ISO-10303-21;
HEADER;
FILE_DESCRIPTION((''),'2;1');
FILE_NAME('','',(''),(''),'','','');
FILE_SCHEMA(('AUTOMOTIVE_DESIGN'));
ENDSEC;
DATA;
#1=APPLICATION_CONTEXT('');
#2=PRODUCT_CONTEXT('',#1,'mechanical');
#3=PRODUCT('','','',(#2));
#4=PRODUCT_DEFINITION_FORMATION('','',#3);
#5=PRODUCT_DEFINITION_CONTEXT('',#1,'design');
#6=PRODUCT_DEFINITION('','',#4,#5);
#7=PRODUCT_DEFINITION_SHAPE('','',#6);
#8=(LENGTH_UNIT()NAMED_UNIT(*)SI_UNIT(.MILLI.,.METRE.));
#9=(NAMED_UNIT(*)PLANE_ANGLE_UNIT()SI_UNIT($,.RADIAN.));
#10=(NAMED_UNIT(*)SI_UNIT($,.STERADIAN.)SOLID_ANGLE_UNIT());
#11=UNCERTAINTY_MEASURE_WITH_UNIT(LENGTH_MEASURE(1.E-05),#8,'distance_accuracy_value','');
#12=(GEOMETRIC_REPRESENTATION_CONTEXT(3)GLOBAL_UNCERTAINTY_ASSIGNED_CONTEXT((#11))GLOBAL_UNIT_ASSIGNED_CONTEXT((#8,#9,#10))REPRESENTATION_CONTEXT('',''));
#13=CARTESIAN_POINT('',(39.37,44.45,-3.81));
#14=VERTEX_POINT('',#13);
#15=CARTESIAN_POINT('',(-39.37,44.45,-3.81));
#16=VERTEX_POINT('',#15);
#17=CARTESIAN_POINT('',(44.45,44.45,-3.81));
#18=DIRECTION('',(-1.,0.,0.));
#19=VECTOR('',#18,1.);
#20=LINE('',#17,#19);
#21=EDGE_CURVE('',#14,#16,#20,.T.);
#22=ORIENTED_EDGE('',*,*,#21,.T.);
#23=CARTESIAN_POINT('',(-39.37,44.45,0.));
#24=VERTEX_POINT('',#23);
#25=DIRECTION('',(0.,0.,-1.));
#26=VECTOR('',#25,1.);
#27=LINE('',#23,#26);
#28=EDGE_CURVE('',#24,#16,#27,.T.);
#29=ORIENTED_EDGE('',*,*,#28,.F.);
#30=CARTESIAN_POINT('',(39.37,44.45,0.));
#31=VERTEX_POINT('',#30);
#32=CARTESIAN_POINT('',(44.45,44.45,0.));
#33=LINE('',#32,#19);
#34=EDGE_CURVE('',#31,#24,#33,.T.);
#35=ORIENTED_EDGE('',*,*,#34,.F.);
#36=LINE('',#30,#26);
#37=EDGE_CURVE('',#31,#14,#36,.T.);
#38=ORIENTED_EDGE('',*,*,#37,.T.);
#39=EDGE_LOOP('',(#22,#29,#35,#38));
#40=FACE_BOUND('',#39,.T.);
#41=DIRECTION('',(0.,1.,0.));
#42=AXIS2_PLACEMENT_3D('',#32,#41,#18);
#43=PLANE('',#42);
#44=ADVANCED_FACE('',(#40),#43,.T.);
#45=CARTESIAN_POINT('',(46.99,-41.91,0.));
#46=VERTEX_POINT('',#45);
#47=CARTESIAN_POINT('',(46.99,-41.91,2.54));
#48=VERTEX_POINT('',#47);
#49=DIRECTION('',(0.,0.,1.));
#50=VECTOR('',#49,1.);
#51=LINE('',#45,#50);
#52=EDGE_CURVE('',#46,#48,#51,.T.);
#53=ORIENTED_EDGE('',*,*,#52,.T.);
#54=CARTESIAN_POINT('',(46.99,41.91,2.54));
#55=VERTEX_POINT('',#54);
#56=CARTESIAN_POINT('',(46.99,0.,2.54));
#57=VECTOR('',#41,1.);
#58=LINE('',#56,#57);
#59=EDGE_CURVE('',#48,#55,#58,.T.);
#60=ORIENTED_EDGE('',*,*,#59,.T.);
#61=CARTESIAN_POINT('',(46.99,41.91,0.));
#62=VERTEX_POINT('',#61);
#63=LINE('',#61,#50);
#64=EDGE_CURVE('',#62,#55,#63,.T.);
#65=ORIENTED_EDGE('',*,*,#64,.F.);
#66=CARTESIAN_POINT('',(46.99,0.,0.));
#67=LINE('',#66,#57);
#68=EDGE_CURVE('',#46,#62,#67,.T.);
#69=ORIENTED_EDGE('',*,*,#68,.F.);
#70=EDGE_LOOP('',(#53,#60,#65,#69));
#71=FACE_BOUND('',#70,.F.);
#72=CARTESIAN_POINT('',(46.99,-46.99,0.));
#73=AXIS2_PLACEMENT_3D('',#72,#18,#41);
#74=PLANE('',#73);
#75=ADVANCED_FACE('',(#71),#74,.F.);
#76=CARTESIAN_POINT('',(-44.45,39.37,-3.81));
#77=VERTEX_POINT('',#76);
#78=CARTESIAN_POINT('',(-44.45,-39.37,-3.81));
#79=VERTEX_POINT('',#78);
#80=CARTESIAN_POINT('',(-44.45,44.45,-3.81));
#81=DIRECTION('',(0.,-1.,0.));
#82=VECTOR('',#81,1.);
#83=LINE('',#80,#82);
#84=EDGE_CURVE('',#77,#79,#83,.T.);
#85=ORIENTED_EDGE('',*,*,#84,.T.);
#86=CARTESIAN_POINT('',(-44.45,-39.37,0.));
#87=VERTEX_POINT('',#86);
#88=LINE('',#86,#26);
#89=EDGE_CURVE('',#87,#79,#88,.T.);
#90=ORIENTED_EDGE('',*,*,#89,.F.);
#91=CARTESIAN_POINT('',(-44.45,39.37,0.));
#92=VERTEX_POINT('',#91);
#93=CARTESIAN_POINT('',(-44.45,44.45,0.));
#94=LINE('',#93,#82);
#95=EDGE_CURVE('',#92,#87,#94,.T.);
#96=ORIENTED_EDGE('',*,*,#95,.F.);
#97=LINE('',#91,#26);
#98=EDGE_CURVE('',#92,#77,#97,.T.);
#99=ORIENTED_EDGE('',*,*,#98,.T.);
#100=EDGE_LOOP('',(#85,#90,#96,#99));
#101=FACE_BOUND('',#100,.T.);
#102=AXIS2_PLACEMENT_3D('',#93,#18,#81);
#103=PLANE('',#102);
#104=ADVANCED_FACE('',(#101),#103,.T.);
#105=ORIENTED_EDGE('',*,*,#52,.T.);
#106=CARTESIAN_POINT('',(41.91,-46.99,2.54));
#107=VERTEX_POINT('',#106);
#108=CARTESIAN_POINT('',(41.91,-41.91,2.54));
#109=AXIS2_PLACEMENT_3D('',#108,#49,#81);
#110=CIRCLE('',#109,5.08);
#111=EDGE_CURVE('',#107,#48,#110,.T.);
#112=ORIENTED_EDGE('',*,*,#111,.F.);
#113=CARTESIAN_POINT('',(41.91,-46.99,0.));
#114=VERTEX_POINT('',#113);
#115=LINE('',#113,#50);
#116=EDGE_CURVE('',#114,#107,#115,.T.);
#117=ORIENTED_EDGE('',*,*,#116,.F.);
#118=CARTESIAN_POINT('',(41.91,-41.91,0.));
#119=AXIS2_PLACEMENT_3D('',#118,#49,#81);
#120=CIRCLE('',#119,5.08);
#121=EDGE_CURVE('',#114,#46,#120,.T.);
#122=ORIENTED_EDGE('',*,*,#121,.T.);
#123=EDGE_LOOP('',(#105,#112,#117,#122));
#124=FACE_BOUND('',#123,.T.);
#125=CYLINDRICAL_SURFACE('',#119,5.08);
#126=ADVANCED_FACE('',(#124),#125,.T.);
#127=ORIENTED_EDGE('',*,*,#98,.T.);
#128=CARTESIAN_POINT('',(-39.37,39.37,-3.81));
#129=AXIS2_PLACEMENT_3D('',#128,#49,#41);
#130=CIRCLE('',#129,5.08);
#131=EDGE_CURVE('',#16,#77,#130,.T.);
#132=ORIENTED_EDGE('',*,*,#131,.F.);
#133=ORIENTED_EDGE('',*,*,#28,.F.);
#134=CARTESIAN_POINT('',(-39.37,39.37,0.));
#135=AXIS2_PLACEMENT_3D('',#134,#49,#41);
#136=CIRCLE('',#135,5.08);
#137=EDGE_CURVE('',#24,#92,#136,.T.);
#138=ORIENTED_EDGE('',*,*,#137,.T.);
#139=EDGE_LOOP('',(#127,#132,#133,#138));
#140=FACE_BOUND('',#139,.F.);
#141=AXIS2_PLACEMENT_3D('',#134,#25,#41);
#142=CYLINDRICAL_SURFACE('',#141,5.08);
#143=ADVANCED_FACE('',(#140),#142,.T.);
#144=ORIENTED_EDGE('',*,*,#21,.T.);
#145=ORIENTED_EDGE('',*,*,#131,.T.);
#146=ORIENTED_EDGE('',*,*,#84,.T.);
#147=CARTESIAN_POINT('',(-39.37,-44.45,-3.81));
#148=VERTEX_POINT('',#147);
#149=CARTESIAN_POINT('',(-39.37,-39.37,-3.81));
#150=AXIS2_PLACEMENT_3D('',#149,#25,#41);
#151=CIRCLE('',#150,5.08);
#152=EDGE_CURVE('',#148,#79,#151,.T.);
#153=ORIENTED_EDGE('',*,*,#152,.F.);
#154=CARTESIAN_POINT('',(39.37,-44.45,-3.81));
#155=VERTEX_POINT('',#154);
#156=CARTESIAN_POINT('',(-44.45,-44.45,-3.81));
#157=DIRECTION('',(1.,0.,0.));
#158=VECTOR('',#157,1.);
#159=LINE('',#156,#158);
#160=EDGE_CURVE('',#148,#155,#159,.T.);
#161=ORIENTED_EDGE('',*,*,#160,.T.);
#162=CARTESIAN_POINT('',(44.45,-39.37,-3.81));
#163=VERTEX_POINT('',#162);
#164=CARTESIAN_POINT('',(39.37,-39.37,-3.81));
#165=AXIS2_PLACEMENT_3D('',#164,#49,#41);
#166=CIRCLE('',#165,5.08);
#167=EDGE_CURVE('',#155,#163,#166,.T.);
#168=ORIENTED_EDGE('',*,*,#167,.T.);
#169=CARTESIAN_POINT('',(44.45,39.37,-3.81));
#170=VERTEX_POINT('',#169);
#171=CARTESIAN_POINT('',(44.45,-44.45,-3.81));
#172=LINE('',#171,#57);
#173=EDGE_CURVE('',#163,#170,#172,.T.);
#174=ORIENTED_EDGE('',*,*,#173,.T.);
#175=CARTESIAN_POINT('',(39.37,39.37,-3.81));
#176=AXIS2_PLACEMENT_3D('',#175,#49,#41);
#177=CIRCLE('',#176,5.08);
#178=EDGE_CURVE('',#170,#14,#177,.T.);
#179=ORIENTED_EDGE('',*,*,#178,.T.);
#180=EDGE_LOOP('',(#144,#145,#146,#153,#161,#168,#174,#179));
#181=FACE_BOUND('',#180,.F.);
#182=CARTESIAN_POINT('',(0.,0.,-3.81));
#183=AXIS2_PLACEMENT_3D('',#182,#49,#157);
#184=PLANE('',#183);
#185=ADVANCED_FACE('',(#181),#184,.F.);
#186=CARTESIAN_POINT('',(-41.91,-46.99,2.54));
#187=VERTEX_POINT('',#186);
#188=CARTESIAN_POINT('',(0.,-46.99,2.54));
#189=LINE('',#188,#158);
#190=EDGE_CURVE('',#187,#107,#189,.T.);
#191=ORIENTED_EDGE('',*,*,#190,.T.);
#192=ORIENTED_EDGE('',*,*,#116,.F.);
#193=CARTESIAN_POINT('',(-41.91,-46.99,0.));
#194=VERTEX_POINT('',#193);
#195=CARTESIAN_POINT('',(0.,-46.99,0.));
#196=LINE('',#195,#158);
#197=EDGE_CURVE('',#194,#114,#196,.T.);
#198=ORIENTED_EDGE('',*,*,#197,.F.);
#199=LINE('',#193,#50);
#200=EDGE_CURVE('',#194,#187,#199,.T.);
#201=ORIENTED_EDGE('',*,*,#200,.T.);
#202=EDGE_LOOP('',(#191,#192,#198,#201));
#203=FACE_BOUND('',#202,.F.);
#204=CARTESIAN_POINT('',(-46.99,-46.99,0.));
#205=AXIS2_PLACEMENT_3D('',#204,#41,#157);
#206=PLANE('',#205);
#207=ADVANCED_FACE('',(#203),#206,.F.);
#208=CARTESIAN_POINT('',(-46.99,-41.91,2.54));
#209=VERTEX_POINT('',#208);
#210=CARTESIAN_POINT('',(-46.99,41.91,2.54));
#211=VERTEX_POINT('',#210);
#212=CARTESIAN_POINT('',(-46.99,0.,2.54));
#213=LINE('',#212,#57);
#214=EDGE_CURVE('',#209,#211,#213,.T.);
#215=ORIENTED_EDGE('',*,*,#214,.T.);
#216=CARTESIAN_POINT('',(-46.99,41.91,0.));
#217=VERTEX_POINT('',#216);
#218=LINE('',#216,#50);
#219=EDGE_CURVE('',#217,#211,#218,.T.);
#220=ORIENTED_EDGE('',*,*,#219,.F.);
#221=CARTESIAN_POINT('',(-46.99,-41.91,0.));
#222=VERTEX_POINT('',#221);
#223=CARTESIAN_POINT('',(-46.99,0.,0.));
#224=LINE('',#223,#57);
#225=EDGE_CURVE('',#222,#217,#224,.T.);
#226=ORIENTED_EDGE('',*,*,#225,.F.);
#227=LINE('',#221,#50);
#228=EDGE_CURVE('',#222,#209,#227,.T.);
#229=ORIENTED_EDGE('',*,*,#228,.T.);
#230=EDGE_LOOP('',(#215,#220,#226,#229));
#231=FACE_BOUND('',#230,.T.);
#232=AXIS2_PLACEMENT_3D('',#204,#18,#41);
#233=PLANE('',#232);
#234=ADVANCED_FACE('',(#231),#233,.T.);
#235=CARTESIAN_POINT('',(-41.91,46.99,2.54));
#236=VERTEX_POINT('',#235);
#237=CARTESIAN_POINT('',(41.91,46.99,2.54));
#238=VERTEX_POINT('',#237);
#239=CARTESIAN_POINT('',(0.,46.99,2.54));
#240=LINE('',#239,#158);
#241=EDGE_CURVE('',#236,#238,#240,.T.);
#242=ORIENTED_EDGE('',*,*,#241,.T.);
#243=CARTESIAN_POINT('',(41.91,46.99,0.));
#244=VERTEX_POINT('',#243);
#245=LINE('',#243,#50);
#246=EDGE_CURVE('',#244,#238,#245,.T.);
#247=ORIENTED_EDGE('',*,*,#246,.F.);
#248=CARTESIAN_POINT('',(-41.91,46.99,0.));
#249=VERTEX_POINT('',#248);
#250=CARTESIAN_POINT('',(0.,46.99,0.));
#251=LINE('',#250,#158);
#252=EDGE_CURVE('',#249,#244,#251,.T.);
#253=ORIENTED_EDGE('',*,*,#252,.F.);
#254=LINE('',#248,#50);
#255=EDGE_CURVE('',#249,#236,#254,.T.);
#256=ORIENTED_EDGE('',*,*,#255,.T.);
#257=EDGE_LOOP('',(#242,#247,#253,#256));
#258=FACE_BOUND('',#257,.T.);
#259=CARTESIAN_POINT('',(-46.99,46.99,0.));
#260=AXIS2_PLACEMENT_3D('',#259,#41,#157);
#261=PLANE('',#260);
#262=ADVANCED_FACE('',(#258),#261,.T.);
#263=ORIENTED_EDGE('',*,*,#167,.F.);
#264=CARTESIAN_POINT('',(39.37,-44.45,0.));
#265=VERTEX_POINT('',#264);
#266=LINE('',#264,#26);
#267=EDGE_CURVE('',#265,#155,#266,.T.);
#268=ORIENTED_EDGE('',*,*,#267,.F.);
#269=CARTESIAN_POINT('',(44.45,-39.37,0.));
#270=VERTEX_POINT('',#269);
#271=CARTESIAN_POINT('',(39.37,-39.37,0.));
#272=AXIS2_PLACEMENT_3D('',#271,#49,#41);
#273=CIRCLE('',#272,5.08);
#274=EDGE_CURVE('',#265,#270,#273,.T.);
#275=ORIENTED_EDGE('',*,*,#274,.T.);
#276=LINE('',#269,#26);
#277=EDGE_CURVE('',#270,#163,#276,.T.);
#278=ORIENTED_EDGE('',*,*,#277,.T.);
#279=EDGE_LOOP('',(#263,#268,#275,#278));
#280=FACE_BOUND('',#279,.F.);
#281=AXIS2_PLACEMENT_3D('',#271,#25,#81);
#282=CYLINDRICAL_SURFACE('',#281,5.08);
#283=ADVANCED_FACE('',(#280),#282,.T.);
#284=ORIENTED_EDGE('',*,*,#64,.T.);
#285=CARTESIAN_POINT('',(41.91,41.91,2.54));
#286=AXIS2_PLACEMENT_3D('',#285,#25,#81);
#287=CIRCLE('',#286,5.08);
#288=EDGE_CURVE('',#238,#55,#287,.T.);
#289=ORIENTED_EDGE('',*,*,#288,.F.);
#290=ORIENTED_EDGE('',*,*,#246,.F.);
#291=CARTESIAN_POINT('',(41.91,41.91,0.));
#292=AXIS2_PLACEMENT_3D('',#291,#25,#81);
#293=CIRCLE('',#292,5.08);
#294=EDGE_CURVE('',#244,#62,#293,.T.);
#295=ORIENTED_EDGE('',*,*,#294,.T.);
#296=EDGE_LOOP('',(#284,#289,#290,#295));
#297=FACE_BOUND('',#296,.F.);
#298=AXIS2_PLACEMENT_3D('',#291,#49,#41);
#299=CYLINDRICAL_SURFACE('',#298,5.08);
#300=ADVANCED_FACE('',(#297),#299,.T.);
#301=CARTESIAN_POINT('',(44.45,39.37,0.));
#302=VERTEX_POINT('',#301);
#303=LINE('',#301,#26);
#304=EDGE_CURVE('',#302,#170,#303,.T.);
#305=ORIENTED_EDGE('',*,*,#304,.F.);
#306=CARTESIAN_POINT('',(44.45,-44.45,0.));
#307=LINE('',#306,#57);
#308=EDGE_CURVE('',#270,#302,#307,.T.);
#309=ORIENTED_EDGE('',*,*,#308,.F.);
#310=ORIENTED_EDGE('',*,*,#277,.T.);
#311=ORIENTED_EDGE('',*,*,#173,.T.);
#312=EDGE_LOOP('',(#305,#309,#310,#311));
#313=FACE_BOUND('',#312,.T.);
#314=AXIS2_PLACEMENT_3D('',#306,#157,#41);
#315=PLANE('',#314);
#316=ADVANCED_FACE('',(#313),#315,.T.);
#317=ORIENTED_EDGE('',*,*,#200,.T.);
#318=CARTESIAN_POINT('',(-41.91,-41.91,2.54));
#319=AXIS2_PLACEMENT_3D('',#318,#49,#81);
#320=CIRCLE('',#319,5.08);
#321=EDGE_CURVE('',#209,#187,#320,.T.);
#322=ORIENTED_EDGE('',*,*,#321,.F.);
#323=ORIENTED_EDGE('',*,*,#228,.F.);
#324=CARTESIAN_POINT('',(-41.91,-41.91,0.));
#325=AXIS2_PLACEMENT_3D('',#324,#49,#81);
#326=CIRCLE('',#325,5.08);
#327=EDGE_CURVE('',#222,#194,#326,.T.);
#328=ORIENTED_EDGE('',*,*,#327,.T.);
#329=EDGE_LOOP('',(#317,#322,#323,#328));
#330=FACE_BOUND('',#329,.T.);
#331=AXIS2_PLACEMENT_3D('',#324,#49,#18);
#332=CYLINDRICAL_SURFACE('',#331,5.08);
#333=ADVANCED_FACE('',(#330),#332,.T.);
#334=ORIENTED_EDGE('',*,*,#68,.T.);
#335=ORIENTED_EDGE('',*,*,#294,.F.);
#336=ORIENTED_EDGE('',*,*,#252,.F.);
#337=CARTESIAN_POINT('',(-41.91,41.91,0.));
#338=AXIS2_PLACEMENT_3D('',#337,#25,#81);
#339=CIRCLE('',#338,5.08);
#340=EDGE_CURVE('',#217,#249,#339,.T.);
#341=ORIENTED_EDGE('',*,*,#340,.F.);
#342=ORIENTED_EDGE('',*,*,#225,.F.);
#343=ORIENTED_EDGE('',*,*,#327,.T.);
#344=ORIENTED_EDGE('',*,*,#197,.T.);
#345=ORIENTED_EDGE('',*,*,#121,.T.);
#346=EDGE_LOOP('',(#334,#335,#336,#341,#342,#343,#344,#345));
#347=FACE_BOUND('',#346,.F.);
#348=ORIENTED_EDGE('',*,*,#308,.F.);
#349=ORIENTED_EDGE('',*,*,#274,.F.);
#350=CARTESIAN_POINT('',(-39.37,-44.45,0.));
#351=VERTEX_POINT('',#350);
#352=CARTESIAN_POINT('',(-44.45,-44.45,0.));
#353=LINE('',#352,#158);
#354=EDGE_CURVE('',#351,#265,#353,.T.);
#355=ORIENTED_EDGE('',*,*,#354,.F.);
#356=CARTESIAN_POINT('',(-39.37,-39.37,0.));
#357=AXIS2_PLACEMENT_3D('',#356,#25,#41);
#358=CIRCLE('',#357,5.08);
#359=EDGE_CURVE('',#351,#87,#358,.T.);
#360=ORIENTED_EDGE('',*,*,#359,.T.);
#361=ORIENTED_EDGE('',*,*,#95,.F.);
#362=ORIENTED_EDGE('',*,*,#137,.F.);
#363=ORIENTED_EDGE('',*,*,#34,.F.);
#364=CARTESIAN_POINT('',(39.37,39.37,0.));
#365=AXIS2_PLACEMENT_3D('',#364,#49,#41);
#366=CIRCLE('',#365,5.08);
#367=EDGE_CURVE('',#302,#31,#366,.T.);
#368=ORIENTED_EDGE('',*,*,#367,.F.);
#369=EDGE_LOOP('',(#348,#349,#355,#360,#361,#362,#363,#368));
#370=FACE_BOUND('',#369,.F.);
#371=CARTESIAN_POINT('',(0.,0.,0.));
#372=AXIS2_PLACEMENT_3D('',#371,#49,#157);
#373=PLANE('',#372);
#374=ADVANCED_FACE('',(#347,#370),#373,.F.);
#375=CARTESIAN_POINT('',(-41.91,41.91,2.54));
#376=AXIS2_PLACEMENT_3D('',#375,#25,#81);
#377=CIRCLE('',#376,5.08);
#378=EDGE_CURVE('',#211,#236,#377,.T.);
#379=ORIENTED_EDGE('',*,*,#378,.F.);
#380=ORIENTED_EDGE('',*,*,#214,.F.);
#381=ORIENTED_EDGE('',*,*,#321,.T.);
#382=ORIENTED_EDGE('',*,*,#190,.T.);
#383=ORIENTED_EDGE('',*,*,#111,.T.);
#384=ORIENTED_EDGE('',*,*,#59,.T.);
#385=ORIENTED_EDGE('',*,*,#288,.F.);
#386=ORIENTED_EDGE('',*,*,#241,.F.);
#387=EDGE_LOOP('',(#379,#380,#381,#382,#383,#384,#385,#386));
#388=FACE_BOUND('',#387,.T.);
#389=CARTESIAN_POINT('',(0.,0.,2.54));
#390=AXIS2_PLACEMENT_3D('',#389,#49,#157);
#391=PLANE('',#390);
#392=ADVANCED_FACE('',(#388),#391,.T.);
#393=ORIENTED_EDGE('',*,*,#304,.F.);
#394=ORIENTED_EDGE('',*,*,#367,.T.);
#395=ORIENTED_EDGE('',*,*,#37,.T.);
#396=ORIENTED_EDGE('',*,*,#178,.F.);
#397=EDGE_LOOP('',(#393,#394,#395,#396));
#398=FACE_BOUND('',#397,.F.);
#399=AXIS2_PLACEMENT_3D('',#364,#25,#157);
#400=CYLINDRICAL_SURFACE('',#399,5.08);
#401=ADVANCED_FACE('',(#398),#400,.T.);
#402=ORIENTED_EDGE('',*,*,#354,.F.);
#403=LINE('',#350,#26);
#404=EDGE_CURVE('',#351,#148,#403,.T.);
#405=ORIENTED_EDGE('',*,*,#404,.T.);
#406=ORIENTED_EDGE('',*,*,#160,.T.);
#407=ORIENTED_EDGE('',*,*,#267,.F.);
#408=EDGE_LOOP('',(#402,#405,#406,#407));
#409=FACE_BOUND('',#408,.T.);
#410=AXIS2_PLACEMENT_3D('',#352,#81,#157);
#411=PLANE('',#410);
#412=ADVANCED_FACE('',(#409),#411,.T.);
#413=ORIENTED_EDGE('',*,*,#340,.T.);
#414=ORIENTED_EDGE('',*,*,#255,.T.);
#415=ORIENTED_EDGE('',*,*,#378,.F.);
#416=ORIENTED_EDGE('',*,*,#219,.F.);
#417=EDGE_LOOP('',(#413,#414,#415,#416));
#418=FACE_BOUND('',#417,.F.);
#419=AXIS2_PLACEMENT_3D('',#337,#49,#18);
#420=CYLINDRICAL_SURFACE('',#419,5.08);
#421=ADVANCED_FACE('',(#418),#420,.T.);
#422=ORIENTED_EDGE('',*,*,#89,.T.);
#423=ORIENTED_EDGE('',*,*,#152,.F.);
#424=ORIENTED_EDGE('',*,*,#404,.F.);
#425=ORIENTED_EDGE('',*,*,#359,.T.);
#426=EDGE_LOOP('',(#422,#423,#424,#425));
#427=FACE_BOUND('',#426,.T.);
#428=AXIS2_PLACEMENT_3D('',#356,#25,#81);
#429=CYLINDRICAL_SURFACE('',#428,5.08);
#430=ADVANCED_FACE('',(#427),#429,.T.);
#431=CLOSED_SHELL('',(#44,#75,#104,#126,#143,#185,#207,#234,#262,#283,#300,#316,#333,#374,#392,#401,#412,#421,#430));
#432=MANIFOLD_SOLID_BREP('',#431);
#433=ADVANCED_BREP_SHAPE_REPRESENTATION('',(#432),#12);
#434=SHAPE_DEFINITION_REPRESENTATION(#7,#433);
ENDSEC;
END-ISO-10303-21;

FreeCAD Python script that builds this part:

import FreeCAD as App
import Part
import Sketcher

V = App.Vector
Q = App.Units.Quantity


def edges_at(feature, points):
    """Names of the edges that pass closest to the given points."""
    edges = feature.Shape.Edges
    near = lambda p: min(range(len(edges)), key=lambda i: edges[i].distToShape(Part.Vertex(*p))[0])
    return sorted({f"Edge{near(p) + 1}" for p in points})

doc = App.newDocument("Part")
params = doc.addObject("Spreadsheet::Sheet", "Params")
for row, (alias, value) in enumerate([
    ("sketch1_width", "3.7 in"),
    ("pad1_length", "0.1 in"),
    ("sketch2_width", "3.5 in"),
    ("pad2_length", "0.15 in"),
    ("fillet_radius", "0.2 in"),
], start=1):
    params.set(f"A{row}", alias)
    params.set(f"B{row}", "=" + value)
    params.setAlias(f"B{row}", alias)

body = doc.addObject("PartDesign::Body", "Body")

sketch1 = doc.addObject("Sketcher::SketchObject", "Sketch")
body.addObject(sketch1)
sketch1.AttachmentSupport = (doc.XY_Plane, [""])
sketch1.MapMode = "FlatFace"
sketch1.addGeometry([
    Part.LineSegment(V(-47, 47, 0), V(-47, -47, 0)),
    Part.LineSegment(V(-47, -47, 0), V(47, -47, 0)),
    Part.LineSegment(V(47, -47, 0), V(47, 47, 0)),
    Part.LineSegment(V(47, 47, 0), V(-47, 47, 0)),
], False)
sketch1.addConstraint([
    Sketcher.Constraint("Coincident", 0, 2, 1, 1),
    Sketcher.Constraint("Coincident", 1, 2, 2, 1),
    Sketcher.Constraint("Coincident", 2, 2, 3, 1),
    Sketcher.Constraint("Coincident", 3, 2, 0, 1),
    Sketcher.Constraint("Vertical", 0),
    Sketcher.Constraint("Horizontal", 1),
    Sketcher.Constraint("Vertical", 2),
    Sketcher.Constraint("Horizontal", 3),
    Sketcher.Constraint("Symmetric", 0, 2, 2, 2, -1, 1),
    Sketcher.Constraint("Equal", 3, 0),
    Sketcher.Constraint("DistanceX", 1, 1, 1, 2, Q("3.7 in")),
])
sketch1.setExpression("Constraints[10]", "Params.sketch1_width")
pad1 = doc.addObject("PartDesign::Pad", "Pad")
body.addObject(pad1)
pad1.Profile = sketch1
pad1.setExpression("Length", "Params.pad1_length")

sketch2 = doc.addObject("Sketcher::SketchObject", "Sketch001")
body.addObject(sketch2)
sketch2.AttachmentSupport = (doc.XY_Plane, [""])
sketch2.MapMode = "FlatFace"
sketch2.addGeometry([
    Part.LineSegment(V(-44, -44, 0), V(44, -44, 0)),
    Part.LineSegment(V(44, -44, 0), V(44, 44, 0)),
    Part.LineSegment(V(44, 44, 0), V(-44, 44, 0)),
    Part.LineSegment(V(-44, 44, 0), V(-44, -44, 0)),
], False)
sketch2.addConstraint([
    Sketcher.Constraint("Coincident", 0, 2, 1, 1),
    Sketcher.Constraint("Coincident", 1, 2, 2, 1),
    Sketcher.Constraint("Coincident", 2, 2, 3, 1),
    Sketcher.Constraint("Coincident", 3, 2, 0, 1),
    Sketcher.Constraint("Horizontal", 0),
    Sketcher.Constraint("Vertical", 1),
    Sketcher.Constraint("Horizontal", 2),
    Sketcher.Constraint("Vertical", 3),
    Sketcher.Constraint("Symmetric", 0, 2, 2, 2, -1, 1),
    Sketcher.Constraint("Equal", 2, 1),
    Sketcher.Constraint("DistanceX", 0, 1, 0, 2, Q("3.5 in")),
])
sketch2.setExpression("Constraints[10]", "Params.sketch2_width")
pad2 = doc.addObject("PartDesign::Pad", "Pad001")
body.addObject(pad2)
pad2.Profile = sketch2
pad2.setExpression("Length", "Params.pad2_length")
pad2.Reversed = True
doc.recompute()

fillet = doc.addObject("PartDesign::Fillet", "Fillet")
body.addObject(fillet)
fillet.Base = (pad2, edges_at(pad2, [
    (44.45, -44.45, -1.905),
    (-44.45, -44.45, -1.905),
    (-44.45, 44.45, -1.905),
    (44.45, 44.45, -1.905),
    (-46.99, -46.99, 1.27),
    (46.99, -46.99, 1.27),
    (46.99, 46.99, 1.27),
    (-46.99, 46.99, 1.27),
]))
fillet.setExpression("Radius", "Params.fillet_radius")

doc.recompute()
